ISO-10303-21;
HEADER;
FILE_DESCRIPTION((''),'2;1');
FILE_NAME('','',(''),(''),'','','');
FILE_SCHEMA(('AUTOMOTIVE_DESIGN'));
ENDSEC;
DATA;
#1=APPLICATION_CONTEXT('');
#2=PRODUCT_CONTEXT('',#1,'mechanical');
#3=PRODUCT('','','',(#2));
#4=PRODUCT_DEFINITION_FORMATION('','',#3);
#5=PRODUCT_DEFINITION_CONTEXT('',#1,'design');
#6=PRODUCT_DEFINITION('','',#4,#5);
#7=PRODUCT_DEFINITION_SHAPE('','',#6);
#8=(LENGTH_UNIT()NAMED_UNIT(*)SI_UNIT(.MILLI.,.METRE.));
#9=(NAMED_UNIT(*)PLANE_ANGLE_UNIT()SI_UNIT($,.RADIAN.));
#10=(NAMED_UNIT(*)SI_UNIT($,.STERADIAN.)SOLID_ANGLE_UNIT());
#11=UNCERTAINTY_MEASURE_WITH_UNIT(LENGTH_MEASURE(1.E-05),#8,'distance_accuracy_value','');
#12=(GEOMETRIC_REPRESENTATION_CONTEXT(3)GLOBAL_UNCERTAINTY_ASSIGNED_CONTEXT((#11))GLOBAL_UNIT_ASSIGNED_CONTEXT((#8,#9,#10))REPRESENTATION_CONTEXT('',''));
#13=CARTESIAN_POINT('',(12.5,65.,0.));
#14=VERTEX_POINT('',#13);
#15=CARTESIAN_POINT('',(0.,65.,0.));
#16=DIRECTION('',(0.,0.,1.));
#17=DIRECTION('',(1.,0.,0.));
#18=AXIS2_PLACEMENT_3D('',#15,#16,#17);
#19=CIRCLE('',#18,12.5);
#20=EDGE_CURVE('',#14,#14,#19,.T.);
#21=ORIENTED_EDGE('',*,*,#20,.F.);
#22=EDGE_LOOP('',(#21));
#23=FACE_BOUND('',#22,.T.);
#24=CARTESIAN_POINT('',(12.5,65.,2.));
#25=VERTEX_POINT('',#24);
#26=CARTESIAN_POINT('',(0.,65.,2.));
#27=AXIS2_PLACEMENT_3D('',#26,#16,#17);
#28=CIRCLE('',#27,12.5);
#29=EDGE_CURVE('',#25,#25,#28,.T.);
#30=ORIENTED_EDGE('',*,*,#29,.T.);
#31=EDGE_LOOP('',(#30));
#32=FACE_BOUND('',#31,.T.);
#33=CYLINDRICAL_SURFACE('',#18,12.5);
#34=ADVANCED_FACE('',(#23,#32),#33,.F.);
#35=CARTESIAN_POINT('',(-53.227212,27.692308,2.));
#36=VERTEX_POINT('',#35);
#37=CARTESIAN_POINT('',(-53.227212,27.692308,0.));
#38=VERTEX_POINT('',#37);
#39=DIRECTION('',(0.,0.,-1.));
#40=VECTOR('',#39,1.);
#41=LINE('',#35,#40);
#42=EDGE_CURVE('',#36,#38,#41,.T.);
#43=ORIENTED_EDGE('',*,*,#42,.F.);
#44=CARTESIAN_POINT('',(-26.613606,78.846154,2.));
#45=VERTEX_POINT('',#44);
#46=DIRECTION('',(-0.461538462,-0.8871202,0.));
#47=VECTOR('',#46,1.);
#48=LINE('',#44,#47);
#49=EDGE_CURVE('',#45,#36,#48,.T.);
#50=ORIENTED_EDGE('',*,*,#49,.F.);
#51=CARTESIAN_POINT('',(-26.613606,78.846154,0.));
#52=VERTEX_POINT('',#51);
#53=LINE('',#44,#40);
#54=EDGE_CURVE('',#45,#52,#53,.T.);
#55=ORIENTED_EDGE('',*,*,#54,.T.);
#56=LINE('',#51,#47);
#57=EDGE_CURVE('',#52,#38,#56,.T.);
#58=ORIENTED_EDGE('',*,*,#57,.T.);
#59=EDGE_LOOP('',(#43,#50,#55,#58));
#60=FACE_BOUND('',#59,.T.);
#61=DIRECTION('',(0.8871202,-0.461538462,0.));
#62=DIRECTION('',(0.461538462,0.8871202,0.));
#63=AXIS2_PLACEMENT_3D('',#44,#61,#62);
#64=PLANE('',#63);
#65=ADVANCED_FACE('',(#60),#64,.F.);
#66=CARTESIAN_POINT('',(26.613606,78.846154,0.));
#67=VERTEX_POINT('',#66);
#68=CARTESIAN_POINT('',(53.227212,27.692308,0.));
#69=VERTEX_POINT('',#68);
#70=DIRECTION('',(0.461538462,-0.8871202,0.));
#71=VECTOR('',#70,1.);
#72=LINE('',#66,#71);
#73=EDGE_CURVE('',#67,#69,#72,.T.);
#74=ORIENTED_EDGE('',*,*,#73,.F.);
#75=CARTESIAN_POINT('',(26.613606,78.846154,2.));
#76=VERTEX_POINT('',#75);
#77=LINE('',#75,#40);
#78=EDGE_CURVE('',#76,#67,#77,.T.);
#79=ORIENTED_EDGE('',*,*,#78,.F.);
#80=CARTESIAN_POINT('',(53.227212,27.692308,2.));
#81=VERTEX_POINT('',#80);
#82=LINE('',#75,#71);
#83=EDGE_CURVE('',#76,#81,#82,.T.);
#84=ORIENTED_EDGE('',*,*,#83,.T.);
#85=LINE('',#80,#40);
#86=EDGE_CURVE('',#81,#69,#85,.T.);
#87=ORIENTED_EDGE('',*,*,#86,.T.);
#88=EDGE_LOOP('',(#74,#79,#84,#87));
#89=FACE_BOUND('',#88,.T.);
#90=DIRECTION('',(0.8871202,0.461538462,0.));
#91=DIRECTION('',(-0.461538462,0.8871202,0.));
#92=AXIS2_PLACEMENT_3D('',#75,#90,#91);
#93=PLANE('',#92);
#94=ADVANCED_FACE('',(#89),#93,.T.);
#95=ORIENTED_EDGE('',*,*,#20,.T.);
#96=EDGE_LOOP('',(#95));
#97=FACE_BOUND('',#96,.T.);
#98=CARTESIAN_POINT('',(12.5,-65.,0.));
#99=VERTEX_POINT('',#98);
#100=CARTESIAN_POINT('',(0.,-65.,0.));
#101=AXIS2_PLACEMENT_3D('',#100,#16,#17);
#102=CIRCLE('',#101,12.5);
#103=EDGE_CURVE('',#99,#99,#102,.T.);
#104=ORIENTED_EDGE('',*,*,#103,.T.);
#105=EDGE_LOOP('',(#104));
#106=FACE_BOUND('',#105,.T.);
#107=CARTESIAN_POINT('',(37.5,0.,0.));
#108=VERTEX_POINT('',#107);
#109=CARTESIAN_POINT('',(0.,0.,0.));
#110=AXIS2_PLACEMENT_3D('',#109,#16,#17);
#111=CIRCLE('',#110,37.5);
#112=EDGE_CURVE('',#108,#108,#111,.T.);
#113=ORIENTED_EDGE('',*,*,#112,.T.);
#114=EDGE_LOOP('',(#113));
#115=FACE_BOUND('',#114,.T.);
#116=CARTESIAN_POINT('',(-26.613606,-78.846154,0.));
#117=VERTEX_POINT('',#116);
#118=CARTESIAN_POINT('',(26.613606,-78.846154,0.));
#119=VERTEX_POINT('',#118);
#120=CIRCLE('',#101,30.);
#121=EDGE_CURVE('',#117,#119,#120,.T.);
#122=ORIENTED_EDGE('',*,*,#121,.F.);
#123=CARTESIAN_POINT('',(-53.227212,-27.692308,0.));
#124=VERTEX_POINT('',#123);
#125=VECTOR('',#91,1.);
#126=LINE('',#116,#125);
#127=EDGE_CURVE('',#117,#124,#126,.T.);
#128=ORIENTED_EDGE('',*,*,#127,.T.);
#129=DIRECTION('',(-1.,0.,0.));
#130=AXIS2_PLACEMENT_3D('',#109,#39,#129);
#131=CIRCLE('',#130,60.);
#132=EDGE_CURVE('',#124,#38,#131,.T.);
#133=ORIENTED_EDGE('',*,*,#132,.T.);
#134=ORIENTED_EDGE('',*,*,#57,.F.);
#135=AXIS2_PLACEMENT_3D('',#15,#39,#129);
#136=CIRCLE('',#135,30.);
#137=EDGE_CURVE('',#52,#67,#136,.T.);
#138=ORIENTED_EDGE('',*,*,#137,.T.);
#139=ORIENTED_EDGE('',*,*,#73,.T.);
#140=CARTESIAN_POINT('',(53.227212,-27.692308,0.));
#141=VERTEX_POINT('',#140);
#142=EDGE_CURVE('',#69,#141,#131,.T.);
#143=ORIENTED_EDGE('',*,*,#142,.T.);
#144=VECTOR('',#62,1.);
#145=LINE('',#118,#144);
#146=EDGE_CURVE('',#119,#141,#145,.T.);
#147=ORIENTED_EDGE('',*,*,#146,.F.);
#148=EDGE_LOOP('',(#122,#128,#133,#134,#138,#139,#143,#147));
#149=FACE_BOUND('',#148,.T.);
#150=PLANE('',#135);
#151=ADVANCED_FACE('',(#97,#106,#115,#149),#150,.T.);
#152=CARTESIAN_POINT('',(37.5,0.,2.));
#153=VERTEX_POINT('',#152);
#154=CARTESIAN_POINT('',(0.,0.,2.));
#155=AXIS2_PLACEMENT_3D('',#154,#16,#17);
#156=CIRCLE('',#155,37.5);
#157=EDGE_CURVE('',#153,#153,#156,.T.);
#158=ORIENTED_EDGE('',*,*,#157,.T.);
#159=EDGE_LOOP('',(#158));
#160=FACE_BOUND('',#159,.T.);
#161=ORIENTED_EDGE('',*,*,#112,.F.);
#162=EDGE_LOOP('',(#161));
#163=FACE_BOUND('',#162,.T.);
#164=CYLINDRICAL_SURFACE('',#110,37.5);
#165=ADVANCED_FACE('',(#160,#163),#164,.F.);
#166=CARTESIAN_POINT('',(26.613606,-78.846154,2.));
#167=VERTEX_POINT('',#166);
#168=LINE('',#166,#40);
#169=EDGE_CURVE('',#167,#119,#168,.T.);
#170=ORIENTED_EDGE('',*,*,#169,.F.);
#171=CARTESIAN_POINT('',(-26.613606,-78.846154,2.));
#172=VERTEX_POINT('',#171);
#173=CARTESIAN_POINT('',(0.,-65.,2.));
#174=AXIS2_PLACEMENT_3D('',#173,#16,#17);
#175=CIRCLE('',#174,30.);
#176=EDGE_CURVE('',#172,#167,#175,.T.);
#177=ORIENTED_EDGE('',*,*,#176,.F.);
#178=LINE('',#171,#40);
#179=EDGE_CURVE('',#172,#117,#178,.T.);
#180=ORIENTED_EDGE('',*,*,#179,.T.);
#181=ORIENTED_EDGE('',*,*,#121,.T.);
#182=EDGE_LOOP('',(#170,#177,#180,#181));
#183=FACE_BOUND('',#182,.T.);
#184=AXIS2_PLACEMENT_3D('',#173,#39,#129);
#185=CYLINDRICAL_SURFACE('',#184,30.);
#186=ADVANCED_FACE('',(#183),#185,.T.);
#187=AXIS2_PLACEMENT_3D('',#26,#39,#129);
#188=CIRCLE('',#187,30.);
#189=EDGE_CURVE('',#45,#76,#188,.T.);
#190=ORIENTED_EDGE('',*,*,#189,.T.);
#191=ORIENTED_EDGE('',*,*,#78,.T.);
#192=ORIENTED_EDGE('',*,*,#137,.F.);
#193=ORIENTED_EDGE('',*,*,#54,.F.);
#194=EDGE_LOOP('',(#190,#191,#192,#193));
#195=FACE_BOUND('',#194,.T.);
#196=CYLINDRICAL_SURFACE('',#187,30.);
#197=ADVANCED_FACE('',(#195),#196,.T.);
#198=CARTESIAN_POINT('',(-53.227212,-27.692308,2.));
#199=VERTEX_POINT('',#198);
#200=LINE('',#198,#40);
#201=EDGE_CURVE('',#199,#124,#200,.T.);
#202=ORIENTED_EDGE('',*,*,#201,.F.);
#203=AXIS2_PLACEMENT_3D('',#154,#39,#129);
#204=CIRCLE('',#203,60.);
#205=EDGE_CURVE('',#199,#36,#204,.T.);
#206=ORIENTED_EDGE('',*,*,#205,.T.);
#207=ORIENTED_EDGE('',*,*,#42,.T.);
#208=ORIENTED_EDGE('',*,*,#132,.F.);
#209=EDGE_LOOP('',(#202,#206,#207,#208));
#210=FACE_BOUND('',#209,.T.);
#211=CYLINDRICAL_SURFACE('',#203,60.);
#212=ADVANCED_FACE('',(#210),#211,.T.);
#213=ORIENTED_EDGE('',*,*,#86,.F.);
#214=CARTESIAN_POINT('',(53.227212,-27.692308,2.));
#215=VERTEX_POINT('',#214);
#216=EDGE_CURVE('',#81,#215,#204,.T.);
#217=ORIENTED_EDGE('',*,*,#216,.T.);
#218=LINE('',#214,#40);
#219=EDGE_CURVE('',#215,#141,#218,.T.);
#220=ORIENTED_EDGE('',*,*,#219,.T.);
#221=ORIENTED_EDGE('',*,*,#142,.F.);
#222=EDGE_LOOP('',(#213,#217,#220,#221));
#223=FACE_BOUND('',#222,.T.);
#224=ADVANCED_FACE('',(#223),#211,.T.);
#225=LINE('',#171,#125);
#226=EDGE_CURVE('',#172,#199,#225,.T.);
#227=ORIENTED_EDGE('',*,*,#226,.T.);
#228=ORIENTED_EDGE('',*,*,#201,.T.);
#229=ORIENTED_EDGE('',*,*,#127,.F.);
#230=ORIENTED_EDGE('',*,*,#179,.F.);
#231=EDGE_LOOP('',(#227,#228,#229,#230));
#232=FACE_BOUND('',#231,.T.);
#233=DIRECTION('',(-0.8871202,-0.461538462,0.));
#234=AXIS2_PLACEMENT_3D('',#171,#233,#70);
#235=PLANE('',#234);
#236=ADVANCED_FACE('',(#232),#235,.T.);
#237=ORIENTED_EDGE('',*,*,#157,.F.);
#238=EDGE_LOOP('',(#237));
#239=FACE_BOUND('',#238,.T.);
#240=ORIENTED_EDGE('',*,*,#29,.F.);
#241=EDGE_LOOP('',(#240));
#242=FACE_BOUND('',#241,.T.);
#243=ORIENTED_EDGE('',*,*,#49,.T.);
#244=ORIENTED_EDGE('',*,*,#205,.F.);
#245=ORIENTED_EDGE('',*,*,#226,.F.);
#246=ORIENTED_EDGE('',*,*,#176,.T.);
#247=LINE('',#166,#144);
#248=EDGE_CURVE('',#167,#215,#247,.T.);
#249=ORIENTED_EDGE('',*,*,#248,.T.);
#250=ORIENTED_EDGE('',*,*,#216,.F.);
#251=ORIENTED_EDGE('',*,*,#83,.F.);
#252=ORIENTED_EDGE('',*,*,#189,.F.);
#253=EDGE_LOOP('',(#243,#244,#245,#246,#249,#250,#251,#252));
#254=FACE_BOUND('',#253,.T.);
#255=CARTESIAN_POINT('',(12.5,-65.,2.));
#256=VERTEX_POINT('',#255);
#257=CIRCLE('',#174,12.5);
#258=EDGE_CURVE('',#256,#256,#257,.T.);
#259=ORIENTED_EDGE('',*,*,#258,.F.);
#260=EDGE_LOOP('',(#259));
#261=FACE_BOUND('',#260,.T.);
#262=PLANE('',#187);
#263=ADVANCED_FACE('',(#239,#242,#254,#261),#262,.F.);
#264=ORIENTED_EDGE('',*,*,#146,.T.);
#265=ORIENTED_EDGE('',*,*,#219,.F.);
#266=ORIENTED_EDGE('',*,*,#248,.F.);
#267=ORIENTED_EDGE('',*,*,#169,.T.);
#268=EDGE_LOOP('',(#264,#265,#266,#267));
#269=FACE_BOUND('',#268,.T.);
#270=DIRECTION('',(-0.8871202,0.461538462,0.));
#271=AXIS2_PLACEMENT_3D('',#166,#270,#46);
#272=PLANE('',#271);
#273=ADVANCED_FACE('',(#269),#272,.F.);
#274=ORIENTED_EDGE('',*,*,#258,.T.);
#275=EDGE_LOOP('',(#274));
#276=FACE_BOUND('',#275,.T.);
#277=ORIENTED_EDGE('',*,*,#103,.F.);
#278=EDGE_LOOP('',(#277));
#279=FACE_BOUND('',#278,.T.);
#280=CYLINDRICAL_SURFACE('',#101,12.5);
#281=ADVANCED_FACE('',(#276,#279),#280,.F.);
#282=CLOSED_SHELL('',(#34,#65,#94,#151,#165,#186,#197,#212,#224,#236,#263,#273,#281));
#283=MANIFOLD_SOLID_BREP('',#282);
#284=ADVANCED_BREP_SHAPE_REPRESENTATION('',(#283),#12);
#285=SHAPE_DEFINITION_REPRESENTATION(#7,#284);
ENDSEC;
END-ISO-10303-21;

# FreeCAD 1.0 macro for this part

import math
import FreeCAD as App
import Part
import Sketcher

doc = App.newDocument("Part")
body = doc.addObject("PartDesign::Body", "Body")

# Sketch on XY plane
sketch1 = body.newObject("Sketcher::SketchObject", "Sketch")
sketch1.AttachmentSupport = (doc.getObject("XY_Plane"), [""])
sketch1.MapMode = "FlatFace"
sketch1.addGeometry([
    Part.LineSegment(App.Vector(53, 28, 0), App.Vector(27, 79, 0)),  # 0
    Part.ArcOfCircle(Part.Circle(App.Vector(0, 65, 0), App.Vector(0, 0, 1), 30), math.radians(27), math.radians(153)),  # 1
    Part.LineSegment(App.Vector(-27, 79, 0), App.Vector(-53, 28, 0)),  # 2
    Part.ArcOfCircle(Part.Circle(App.Vector(0, 0, 0), App.Vector(0, 0, 1), 60), math.radians(153), math.radians(207)),  # 3
    Part.LineSegment(App.Vector(-53, -28, 0), App.Vector(-27, -79, 0)),  # 4
    Part.ArcOfCircle(Part.Circle(App.Vector(0, -65, 0), App.Vector(0, 0, 1), 30), math.radians(-153), math.radians(-27)),  # 5
    Part.LineSegment(App.Vector(27, -79, 0), App.Vector(53, -28, 0)),  # 6
    Part.ArcOfCircle(Part.Circle(App.Vector(0, 0, 0), App.Vector(0, 0, 1), 60), math.radians(-27), math.radians(27)),  # 7
], False)
sketch1.addConstraint([
    Sketcher.Constraint("Tangent", 0, 2, 1, 1),
    Sketcher.Constraint("Tangent", 1, 2, 2, 1),
    Sketcher.Constraint("Tangent", 2, 2, 3, 1),
    Sketcher.Constraint("Tangent", 3, 2, 4, 1),
    Sketcher.Constraint("Tangent", 4, 2, 5, 1),
    Sketcher.Constraint("Tangent", 5, 2, 6, 1),
    Sketcher.Constraint("Tangent", 6, 2, 7, 1),
    Sketcher.Constraint("Tangent", 7, 2, 0, 1),
    Sketcher.Constraint("Coincident", 3, 3, -1, 1),
    Sketcher.Constraint("Coincident", 7, 3, -1, 1),
    Sketcher.Constraint("Equal", 1, 5),
    Sketcher.Constraint("Equal", 3, 7),
    Sketcher.Constraint("Symmetric", 1, 3, 5, 3, -1, 1),
    Sketcher.Constraint("PointOnObject", 1, 3, -2),
    Sketcher.Constraint("Radius", 1, 30.0),
    Sketcher.Constraint("Radius", 3, 60.0),
    Sketcher.Constraint("DistanceY", -1, 1, 1, 3, 65.0),
])
pad1 = body.newObject("PartDesign::Pad", "Pad")
pad1.Profile = sketch1
pad1.Length = 2

# Sketch on XY plane
sketch2 = body.newObject("Sketcher::SketchObject", "Sketch001")
sketch2.AttachmentSupport = (doc.getObject("XY_Plane"), [""])
sketch2.MapMode = "FlatFace"
sketch2.AttachmentOffset = App.Placement(App.Vector(0, 0, 2), App.Rotation())
sketch2.addGeometry([
    Part.Circle(App.Vector(0, 65, 0), App.Vector(0, 0, 1), 12),
    Part.Circle(App.Vector(0, -65, 0), App.Vector(0, 0, 1), 12),
    Part.Circle(App.Vector(0, 0, 0), App.Vector(0, 0, 1), 38),
], False)
sketch2.addConstraint([
    Sketcher.Constraint("Coincident", 2, 3, -1, 1),
    Sketcher.Constraint("Equal", 0, 1),
    Sketcher.Constraint("Symmetric", 0, 3, 1, 3, -1, 1),
    Sketcher.Constraint("PointOnObject", 0, 3, -2),
    Sketcher.Constraint("Diameter", 0, 25.0),
    Sketcher.Constraint("Diameter", 2, 75.0),
    Sketcher.Constraint("DistanceY", -1, 1, 0, 3, 65.0),
])
pocket1 = body.newObject("PartDesign::Pocket", "Pocket")
pocket1.Profile = sketch2
pocket1.Type = "ThroughAll"

doc.recompute()
